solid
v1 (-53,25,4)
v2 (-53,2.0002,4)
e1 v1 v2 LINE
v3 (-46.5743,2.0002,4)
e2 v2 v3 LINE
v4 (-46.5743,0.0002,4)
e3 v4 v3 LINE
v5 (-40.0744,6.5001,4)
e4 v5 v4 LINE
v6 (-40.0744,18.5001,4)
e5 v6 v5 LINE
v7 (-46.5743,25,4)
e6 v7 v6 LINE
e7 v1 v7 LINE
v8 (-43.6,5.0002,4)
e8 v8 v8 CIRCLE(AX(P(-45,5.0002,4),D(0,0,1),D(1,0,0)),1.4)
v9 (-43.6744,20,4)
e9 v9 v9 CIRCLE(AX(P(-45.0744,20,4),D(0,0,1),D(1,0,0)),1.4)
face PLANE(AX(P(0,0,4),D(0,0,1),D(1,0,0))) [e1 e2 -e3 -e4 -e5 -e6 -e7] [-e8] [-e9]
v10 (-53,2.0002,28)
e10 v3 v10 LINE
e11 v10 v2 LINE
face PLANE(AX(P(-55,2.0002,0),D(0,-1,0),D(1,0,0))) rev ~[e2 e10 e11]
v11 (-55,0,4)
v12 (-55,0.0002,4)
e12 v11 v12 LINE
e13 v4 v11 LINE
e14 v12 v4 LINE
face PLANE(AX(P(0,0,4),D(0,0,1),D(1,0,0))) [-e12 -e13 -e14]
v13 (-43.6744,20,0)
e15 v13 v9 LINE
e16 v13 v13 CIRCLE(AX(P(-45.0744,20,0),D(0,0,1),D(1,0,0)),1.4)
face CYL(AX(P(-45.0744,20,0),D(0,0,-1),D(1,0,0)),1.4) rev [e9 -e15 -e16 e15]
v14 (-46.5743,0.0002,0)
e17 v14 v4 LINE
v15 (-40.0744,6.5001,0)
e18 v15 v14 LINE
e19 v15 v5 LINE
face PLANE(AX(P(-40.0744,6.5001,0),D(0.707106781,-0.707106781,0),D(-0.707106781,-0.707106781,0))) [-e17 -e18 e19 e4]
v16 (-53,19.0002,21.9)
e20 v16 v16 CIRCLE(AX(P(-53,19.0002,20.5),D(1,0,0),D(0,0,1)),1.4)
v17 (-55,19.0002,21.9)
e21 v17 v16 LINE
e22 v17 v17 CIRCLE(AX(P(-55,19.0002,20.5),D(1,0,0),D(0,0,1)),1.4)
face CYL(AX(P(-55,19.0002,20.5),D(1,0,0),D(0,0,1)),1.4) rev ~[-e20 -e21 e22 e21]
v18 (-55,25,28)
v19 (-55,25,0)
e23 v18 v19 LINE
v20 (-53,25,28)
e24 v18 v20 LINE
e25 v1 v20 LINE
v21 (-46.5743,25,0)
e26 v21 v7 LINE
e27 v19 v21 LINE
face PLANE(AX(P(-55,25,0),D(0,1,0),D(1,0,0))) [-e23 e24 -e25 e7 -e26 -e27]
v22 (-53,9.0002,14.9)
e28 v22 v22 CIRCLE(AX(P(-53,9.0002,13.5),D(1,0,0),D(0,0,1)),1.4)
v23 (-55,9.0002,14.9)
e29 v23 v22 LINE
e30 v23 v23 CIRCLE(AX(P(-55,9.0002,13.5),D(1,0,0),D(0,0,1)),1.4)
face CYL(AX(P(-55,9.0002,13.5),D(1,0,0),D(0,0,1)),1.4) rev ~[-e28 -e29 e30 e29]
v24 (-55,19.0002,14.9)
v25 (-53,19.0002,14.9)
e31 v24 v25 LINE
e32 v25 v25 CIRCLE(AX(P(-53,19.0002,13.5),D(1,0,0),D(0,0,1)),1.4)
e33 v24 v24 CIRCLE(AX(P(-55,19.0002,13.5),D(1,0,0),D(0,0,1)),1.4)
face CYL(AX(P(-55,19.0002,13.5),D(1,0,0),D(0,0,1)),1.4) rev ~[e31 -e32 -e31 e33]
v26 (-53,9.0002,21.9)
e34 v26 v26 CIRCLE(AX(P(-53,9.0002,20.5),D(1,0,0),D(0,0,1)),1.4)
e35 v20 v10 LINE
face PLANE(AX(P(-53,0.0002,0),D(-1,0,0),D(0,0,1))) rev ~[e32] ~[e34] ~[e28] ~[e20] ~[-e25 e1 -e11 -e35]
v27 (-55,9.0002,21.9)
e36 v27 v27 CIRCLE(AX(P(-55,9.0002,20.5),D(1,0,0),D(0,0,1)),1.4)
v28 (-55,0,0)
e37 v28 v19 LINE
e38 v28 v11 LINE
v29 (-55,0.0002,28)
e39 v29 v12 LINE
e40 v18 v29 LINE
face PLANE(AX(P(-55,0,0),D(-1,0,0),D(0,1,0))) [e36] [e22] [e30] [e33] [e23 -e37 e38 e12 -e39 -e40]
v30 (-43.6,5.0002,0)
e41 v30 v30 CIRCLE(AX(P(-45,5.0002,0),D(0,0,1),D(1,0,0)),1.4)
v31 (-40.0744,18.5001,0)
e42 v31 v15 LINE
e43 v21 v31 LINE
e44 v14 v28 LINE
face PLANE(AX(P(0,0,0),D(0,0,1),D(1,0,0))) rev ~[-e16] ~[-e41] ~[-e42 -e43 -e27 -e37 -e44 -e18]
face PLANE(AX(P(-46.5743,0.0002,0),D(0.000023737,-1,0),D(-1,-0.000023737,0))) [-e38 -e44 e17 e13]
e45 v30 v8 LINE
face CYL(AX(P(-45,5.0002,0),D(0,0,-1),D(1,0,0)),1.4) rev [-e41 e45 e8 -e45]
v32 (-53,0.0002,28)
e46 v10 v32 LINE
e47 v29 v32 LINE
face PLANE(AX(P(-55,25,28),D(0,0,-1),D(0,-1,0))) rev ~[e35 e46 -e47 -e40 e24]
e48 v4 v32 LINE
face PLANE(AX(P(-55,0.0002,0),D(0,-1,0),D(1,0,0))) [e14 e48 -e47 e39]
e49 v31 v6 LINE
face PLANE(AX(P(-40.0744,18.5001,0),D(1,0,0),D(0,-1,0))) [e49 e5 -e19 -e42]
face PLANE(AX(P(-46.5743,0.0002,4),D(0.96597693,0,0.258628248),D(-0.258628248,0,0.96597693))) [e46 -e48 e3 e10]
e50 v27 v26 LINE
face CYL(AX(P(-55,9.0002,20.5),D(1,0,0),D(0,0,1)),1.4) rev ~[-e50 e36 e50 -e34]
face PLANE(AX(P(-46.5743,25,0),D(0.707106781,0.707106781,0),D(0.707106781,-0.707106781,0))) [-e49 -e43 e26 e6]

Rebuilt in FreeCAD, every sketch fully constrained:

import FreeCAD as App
import Part
import Sketcher
Q = App.Units.Quantity


def add_polygon(sketch, points):
    """Adds a closed chain of lines whose ends are joined by coincident constraints."""
    first, n = sketch.GeometryCount, len(points)
    for a, b in zip(points, points[1:] + points[:1]):
        sketch.addGeometry(Part.LineSegment(App.Vector(*a, 0), App.Vector(*b, 0)), False)
    for i in range(n):
        sketch.addConstraint(Sketcher.Constraint("Coincident", first + i, 2, first + (i + 1) % n, 1))

doc = App.newDocument("Part")
body = doc.addObject("PartDesign::Body", "Body")

# Sketch on XY plane
sketch1 = body.newObject("Sketcher::SketchObject", "Sketch")
sketch1.AttachmentSupport = (doc.getObject("XY_Plane"), [""])
sketch1.MapMode = "FlatFace"
add_polygon(sketch1, [(-55, 25), (-55, 0), (-46.6, 0), (-40.1, 6.5), (-40.1, 18.5), (-46.6, 25)])  # lines 0-5
sketch1.addGeometry(Part.Circle(App.Vector(-45, 5, 0), App.Vector(0, 0, 1), 1.4), False)  # 6
sketch1.addGeometry(Part.Circle(App.Vector(-45.1, 20, 0), App.Vector(0, 0, 1), 1.4), False)  # 7
sketch1.addConstraint(Sketcher.Constraint("Vertical", 0))
sketch1.addConstraint(Sketcher.Constraint("Vertical", 3))
sketch1.addConstraint(Sketcher.Constraint("Horizontal", 5))
sketch1.addConstraint(Sketcher.Constraint("Equal", 6, 7))
sketch1.addConstraint(Sketcher.Constraint("PointOnObject", 0, 2, -1))
sketch1.addConstraint(Sketcher.Constraint("Perpendicular", 2, 4))
sketch1.addConstraint(Sketcher.Constraint("Vertical", 1, 2, 4, 2))
sketch1.addConstraint(Sketcher.Constraint("Equal", 2, 4))
sketch1.addConstraint(Sketcher.Constraint("DistanceY", 3, 1, 3, 2, Q("12 mm")))
sketch1.addConstraint(Sketcher.Constraint("DistanceX", 6, 3, -1, 1, Q("45 mm")))
sketch1.addConstraint(Sketcher.Constraint("DistanceY", 1, 2, 6, 3, Q("5 mm")))
sketch1.addConstraint(Sketcher.Constraint("DistanceX", 7, 3, 2, 2, Q("5 mm")))
sketch1.addConstraint(Sketcher.Constraint("DistanceY", 7, 3, 4, 2, Q("5 mm")))
sketch1.addConstraint(Sketcher.Constraint("Diameter", 6, Q("2.8 mm")))
sketch1.addConstraint(Sketcher.Constraint("DistanceY", 0, 2, 0, 1, Q("25 mm")))
sketch1.addConstraint(Sketcher.Constraint("DistanceX", 0, 2, -1, 1, Q("55 mm")))
sketch1.addConstraint(Sketcher.Constraint("DistanceY", -1, 1, 6, 3, Q("5.0002 mm")))
sketch1.addConstraint(Sketcher.Constraint("DistanceX", 5, 2, 5, 1, Q("8.4257 mm")))
pad1 = body.newObject("PartDesign::Pad", "Pad")
pad1.Profile = sketch1
pad1.Length = 4

# Sketch on YZ plane
sketch2 = body.newObject("Sketcher::SketchObject", "Sketch001")
sketch2.AttachmentSupport = (doc.getObject("YZ_Plane"), [""])
sketch2.MapMode = "FlatFace"
sketch2.AttachmentOffset = App.Placement(App.Vector(0, 0, -55), App.Rotation())
add_polygon(sketch2, [(25, 28), (25, 4), (0, 4), (0, 28)])  # lines 0-3
sketch2.addConstraint(Sketcher.Constraint("Vertical", 0))
sketch2.addConstraint(Sketcher.Constraint("Horizontal", 1))
sketch2.addConstraint(Sketcher.Constraint("Vertical", 2))
sketch2.addConstraint(Sketcher.Constraint("Horizontal", 3))
sketch2.addConstraint(Sketcher.Constraint("DistanceY", 0, 2, 0, 1, Q("24 mm")))
sketch2.addConstraint(Sketcher.Constraint("DistanceX", -1, 1, 0, 2, Q("25 mm")))
sketch2.addConstraint(Sketcher.Constraint("DistanceY", -1, 1, 0, 2, Q("4 mm")))
sketch2.addConstraint(Sketcher.Constraint("DistanceX", 1, 2, 1, 1, Q("24.9998 mm")))
pad2 = body.newObject("PartDesign::Pad", "Pad001")
pad2.Profile = sketch2
pad2.Length = 2

# Sketch on XZ plane
sketch3 = body.newObject("Sketcher::SketchObject", "Sketch002")
sketch3.AttachmentSupport = (doc.getObject("XZ_Plane"), [""])
sketch3.MapMode = "FlatFace"
sketch3.AttachmentOffset = App.Placement(App.Vector(0, 0, -0.0002), App.Rotation())
add_polygon(sketch3, [(-47, 4), (-53, 28), (-53, 4)])  # lines 0-2
sketch3.addConstraint(Sketcher.Constraint("Vertical", 1))
sketch3.addConstraint(Sketcher.Constraint("Horizontal", 2))
sketch3.addConstraint(Sketcher.Constraint("DistanceY", 1, 2, 1, 1, Q("24 mm")))
sketch3.addConstraint(Sketcher.Constraint("DistanceX", 0, 2, -1, 1, Q("53 mm")))
sketch3.addConstraint(Sketcher.Constraint("DistanceY", -1, 1, 0, 2, Q("28 mm")))
sketch3.addConstraint(Sketcher.Constraint("DistanceX", 2, 1, 2, 2, Q("6.4257 mm")))
pad3 = body.newObject("PartDesign::Pad", "Pad002")
pad3.Profile = sketch3
pad3.Length = 2
pad3.Reversed = True

# Sketch on YZ plane
sketch4 = body.newObject("Sketcher::SketchObject", "Sketch003")
sketch4.AttachmentSupport = (doc.getObject("YZ_Plane"), [""])
sketch4.MapMode = "FlatFace"
sketch4.AttachmentOffset = App.Placement(App.Vector(0, 0, -55), App.Rotation())
sketch4.addGeometry(Part.Circle(App.Vector(19, 20.5, 0), App.Vector(0, 0, 1), 1.4), False)
sketch4.addGeometry(Part.Circle(App.Vector(9, 20.5, 0), App.Vector(0, 0, 1), 1.4), False)
sketch4.addGeometry(Part.Circle(App.Vector(9, 13.5, 0), App.Vector(0, 0, 1), 1.4), False)
sketch4.addGeometry(Part.Circle(App.Vector(19, 13.5, 0), App.Vector(0, 0, 1), 1.4), False)
sketch4.addConstraint(Sketcher.Constraint("Equal", 0, 1))
sketch4.addConstraint(Sketcher.Constraint("Equal", 1, 2))
sketch4.addConstraint(Sketcher.Constraint("Equal", 2, 3))
sketch4.addConstraint(Sketcher.Constraint("Horizontal", 0, 3, 1, 3))
sketch4.addConstraint(Sketcher.Constraint("Horizontal", 2, 3, 3, 3))
sketch4.addConstraint(Sketcher.Constraint("Vertical", 1, 3, 2, 3))
sketch4.addConstraint(Sketcher.Constraint("Vertical", 0, 3, 3, 3))
sketch4.addConstraint(Sketcher.Constraint("Diameter", 0, Q("2.8 mm")))
sketch4.addConstraint(Sketcher.Constraint("DistanceX", 1, 3, 0, 3, Q("10 mm")))
sketch4.addConstraint(Sketcher.Constraint("DistanceY", 2, 3, 1, 3, Q("7 mm")))
sketch4.addConstraint(Sketcher.Constraint("DistanceY", -1, 1, 0, 3, Q("20.5 mm")))
sketch4.addConstraint(Sketcher.Constraint("DistanceX", -1, 1, 0, 3, Q("19.0002 mm")))
doc.recompute()
hole = body.newObject("PartDesign::Hole", "Hole")
hole.Profile = sketch4
hole.ThreadType = "None"
hole.Diameter = 2.8
hole.DepthType = "ThroughAll"
hole.Reversed = True

doc.recompute()
